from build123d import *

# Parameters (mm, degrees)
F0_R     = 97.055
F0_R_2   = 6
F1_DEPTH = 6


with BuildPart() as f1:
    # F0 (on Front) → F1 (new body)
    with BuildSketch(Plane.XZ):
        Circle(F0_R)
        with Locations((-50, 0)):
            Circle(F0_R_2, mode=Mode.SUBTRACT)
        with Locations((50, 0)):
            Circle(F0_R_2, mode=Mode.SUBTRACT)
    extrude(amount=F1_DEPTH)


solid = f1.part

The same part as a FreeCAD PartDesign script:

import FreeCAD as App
import Part
import Sketcher

V = App.Vector
Q = App.Units.Quantity

doc = App.newDocument("Part")
params = doc.addObject("Spreadsheet::Sheet", "Params")
for row, (alias, value) in enumerate([
    ("sketch1_diameter", "12 mm"),
    ("sketch1_diameter2", "194.11 mm"),
    ("pad1_length", "6 mm"),
], start=1):
    params.set(f"A{row}", alias)
    params.set(f"B{row}", "=" + value)
    params.setAlias(f"B{row}", alias)

body = doc.addObject("PartDesign::Body", "Body")

# Sketch on XZ plane
sketch1 = doc.addObject("Sketcher::SketchObject", "Sketch")
body.addObject(sketch1)
sketch1.AttachmentSupport = (doc.XZ_Plane, [""])
sketch1.MapMode = "FlatFace"
sketch1.addGeometry([
    Part.Circle(V(0, 0, 0), V(0, 0, 1), 97.055),
    Part.Circle(V(-50, 0, 0), V(0, 0, 1), 6),
    Part.Circle(V(50, 0, 0), V(0, 0, 1), 6),
], False)
sketch1.addConstraint([
    Sketcher.Constraint("Coincident", 0, 3, -1, 1),
    Sketcher.Constraint("Equal", 1, 2),
    Sketcher.Constraint("Symmetric", 1, 3, 2, 3, -1, 1),
    Sketcher.Constraint("PointOnObject", 1, 3, -1),
    Sketcher.Constraint("Diameter", 1, Q("12 mm")),
    Sketcher.Constraint("Diameter", 0, Q("194.11 mm")),
    Sketcher.Constraint("DistanceX", 1, 3, -1, 1, Q("50 mm")),
])
sketch1.setExpression("Constraints[4]", "Params.sketch1_diameter")
sketch1.setExpression("Constraints[5]", "Params.sketch1_diameter2")
pad1 = doc.addObject("PartDesign::Pad", "Pad")
body.addObject(pad1)
pad1.Profile = sketch1
pad1.setExpression("Length", "Params.pad1_length")

doc.recompute()
